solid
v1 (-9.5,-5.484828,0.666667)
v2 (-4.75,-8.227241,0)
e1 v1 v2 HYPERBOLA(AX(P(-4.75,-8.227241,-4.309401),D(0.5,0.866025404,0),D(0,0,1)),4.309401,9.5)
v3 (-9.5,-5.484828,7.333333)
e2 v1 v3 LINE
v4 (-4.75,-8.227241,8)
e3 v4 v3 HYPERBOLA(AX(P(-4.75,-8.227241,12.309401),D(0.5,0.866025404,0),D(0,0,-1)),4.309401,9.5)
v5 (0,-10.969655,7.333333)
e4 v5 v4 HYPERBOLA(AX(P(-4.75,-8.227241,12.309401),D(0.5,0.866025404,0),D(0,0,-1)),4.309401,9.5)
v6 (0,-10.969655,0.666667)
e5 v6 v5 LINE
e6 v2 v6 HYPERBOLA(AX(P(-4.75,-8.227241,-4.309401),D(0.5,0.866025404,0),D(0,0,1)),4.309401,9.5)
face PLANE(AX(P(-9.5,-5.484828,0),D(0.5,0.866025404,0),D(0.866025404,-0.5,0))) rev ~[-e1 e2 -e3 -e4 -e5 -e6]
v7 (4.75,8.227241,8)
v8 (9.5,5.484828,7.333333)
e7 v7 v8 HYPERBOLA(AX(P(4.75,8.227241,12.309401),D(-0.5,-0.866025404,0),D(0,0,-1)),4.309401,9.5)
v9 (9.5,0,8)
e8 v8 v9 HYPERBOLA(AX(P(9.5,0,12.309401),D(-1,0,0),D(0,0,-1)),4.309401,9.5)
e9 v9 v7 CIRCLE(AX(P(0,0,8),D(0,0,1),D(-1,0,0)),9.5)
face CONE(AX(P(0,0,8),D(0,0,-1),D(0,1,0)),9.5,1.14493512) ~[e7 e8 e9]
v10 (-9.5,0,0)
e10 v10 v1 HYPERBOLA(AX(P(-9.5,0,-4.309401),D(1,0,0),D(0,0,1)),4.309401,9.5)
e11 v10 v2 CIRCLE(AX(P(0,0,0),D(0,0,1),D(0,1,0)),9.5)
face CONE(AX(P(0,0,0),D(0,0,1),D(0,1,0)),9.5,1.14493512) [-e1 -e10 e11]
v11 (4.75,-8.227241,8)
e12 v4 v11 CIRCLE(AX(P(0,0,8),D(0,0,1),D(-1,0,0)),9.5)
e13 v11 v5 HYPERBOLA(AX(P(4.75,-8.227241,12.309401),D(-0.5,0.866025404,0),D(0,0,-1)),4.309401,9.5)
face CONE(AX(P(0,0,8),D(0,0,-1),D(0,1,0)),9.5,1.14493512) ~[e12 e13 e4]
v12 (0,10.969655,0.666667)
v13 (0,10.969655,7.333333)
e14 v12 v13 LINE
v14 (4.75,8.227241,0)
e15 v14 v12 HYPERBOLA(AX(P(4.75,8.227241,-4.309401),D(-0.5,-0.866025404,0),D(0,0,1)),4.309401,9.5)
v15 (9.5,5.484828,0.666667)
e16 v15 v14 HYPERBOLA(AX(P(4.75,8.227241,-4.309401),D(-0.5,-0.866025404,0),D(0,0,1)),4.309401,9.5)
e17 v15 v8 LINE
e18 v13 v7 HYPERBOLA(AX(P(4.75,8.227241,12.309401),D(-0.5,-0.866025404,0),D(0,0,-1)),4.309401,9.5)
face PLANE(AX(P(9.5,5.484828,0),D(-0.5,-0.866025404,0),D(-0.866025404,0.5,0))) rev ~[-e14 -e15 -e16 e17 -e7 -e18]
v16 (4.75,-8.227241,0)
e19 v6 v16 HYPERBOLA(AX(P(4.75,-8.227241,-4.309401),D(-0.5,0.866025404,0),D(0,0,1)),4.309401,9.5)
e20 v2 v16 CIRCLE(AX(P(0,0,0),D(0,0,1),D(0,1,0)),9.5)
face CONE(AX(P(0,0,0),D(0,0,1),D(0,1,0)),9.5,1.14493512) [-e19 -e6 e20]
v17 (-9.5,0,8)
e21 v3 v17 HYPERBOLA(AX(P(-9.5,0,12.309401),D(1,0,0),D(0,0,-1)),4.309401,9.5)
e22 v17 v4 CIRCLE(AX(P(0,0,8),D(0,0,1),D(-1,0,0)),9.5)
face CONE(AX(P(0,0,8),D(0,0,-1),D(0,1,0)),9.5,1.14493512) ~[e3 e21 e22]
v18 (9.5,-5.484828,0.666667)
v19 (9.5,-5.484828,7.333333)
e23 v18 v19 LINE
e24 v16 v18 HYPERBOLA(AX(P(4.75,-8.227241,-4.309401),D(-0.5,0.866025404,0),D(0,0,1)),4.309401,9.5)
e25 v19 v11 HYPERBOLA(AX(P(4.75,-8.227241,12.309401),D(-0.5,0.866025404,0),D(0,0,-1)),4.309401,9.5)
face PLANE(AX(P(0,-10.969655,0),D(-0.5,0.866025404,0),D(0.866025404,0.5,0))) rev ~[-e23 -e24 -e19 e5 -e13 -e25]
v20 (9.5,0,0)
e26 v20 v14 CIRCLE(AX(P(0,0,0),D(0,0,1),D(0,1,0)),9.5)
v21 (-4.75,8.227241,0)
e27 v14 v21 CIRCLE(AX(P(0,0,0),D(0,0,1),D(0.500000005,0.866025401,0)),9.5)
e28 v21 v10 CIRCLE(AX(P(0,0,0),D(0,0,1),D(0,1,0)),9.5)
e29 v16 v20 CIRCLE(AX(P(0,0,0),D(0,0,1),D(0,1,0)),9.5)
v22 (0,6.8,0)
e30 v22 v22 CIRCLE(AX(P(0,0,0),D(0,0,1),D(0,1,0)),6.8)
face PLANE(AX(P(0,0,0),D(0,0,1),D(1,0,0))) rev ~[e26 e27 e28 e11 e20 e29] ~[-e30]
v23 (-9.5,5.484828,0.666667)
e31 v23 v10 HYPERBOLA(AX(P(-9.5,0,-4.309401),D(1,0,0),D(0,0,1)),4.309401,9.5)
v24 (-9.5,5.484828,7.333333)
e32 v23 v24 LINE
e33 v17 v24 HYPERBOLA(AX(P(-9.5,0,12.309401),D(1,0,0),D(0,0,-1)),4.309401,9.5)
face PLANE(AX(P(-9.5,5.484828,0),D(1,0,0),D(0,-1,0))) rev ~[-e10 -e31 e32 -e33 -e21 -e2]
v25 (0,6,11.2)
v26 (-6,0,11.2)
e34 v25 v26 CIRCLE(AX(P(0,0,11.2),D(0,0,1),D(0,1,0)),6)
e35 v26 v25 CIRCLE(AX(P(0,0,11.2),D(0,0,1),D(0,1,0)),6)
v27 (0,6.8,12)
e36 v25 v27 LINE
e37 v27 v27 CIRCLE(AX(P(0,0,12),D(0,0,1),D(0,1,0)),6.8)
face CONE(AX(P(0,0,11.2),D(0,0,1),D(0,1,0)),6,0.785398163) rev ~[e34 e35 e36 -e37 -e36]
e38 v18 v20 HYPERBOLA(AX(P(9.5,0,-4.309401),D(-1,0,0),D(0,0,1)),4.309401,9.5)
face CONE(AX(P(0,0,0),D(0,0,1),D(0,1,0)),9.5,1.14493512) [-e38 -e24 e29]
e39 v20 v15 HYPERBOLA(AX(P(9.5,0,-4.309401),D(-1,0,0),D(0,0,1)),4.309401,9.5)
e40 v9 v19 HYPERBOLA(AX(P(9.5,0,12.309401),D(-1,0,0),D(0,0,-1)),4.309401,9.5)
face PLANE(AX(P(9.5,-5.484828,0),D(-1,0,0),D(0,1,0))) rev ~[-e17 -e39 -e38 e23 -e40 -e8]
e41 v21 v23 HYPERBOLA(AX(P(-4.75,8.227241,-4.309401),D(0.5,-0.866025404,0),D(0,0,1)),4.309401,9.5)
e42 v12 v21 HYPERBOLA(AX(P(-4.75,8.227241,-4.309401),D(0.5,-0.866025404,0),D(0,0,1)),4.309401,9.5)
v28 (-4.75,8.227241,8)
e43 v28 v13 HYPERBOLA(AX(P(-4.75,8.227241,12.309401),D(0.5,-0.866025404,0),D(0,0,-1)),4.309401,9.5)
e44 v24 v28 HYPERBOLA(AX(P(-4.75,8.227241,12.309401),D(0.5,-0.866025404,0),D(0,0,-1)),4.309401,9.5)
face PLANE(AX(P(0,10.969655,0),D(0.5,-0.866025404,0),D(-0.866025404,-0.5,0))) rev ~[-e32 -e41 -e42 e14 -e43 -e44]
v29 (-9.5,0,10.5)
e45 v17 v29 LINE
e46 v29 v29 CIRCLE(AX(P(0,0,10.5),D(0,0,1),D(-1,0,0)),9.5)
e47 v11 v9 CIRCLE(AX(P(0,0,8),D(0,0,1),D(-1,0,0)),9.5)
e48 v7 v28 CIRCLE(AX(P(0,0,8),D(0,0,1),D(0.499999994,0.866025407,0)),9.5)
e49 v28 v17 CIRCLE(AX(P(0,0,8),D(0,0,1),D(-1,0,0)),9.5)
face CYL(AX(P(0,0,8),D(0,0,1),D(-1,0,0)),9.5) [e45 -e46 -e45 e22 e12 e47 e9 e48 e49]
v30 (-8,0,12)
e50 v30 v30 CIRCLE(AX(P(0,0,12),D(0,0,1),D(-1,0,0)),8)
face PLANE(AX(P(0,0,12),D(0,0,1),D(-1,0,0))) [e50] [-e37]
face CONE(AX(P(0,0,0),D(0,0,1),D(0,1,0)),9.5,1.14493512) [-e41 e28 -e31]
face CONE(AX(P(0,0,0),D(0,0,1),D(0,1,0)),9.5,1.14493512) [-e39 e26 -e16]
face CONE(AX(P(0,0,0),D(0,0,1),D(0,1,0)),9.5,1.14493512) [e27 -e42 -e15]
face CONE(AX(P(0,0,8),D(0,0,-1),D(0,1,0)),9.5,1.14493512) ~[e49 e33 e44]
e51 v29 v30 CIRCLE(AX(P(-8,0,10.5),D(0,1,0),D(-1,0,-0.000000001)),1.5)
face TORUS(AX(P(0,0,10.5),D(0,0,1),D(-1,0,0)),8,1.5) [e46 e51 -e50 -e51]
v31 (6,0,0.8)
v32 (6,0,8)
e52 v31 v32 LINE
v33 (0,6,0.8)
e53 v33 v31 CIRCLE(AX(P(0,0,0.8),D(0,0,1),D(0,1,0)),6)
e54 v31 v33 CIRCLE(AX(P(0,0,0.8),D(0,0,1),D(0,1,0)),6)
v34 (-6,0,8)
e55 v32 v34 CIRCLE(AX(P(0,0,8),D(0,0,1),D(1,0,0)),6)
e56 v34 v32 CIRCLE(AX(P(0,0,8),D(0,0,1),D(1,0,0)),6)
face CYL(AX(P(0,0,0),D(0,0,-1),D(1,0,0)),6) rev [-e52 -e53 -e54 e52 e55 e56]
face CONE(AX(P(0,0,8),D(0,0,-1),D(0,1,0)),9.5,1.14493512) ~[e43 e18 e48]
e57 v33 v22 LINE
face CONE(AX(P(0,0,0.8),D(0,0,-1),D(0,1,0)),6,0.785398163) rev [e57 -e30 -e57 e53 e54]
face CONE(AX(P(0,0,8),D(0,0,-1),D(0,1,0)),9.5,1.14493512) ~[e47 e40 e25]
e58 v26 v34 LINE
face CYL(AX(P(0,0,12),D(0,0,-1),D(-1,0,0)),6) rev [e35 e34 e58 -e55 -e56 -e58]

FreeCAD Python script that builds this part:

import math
import FreeCAD as App
import Part
import Sketcher

V = App.Vector
Q = App.Units.Quantity

doc = App.newDocument("Part")
params = doc.addObject("Spreadsheet::Sheet", "Params")
for row, (alias, value) in enumerate([
    ("sketch1_diameter", "12 mm"),
    ("pad1_length", "8 mm"),
    ("sketch2_radius", "1.5 mm"),
    ("sketch2_width", "2 mm"),
    ("sketch2_height", "4 mm"),
    ("revolution_angle", "360 deg"),
    ("sketch3_width", "0.8 mm"),
    ("groove_angle", "360 deg"),
], start=1):
    params.set(f"A{row}", alias)
    params.set(f"B{row}", "=" + value)
    params.setAlias(f"B{row}", alias)

body = doc.addObject("PartDesign::Body", "Body")

sketch1 = body.newObject("Sketcher::SketchObject", "Sketch")
sketch1.AttachmentSupport = (doc.getObject("XY_Plane"), [""])
sketch1.MapMode = "FlatFace"
sketch1.addGeometry([
    Part.LineSegment(V(0, -11, 0), V(10, -5, 0)),
    Part.LineSegment(V(10, -5, 0), V(10, 5, 0)),
    Part.LineSegment(V(10, 5, 0), V(0, 11, 0)),
    Part.LineSegment(V(0, 11, 0), V(-10, 5, 0)),
    Part.LineSegment(V(-10, 5, 0), V(-10, -5, 0)),
    Part.LineSegment(V(-10, -5, 0), V(0, -11, 0)),
    Part.Circle(V(0, 0, 0), V(0, 0, 1), 6),
], False)
sketch1.addConstraint([
    Sketcher.Constraint("Coincident", 0, 2, 1, 1),
    Sketcher.Constraint("Coincident", 1, 2, 2, 1),
    Sketcher.Constraint("Coincident", 2, 2, 3, 1),
    Sketcher.Constraint("Coincident", 3, 2, 4, 1),
    Sketcher.Constraint("Coincident", 4, 2, 5, 1),
    Sketcher.Constraint("Coincident", 5, 2, 0, 1),
    Sketcher.Constraint("Vertical", 1),
    Sketcher.Constraint("Vertical", 4),
    Sketcher.Constraint("Coincident", 6, 3, -1, 1),
    Sketcher.Constraint("Symmetric", 0, 2, 3, 2, -1, 1),
    Sketcher.Constraint("Symmetric", 2, 2, 5, 2, -1, 1),
    Sketcher.Constraint("PointOnObject", 2, 2, -2),
    Sketcher.Constraint("Parallel", 2, 5),
    Sketcher.Constraint("Horizontal", 1, 2, 3, 2),
    Sketcher.Constraint("Diameter", 6, 12.0),
    Sketcher.Constraint("Angle", 0, Q("30 deg")),
    Sketcher.Constraint("DistanceX", 3, 2, 1, 2, 19.0),
    Sketcher.Constraint("DistanceY", 1, 1, 1, 2, 10.969655),
])
sketch1.setExpression("Constraints[14]", "Params.sketch1_diameter")
pad1 = body.newObject("PartDesign::Pad", "Pad")
pad1.Profile = sketch1
pad1.setExpression("Length", "Params.pad1_length")

sketch2 = body.newObject("Sketcher::SketchObject", "Sketch001")
sketch2.AttachmentSupport = (doc.getObject("XZ_Plane"), [""])
sketch2.MapMode = "FlatFace"
sketch2.addGeometry([
    Part.LineSegment(V(-9.5, 8, 0), V(-9.5, 10.5, 0)),
    Part.ArcOfCircle(Part.Circle(V(-8, 10.5, 0), V(0, 0, 1), 1.5), math.radians(90), math.radians(180)),
    Part.LineSegment(V(-8, 12, 0), V(-6, 12, 0)),
    Part.LineSegment(V(-6, 12, 0), V(-6, 8, 0)),
    Part.LineSegment(V(-6, 8, 0), V(-9.5, 8, 0)),
], False)
sketch2.addConstraint([
    Sketcher.Constraint("Tangent", 0, 2, 1, 2),
    Sketcher.Constraint("Tangent", 1, 1, 2, 1),
    Sketcher.Constraint("Coincident", 2, 2, 3, 1),
    Sketcher.Constraint("Coincident", 3, 2, 4, 1),
    Sketcher.Constraint("Coincident", 4, 2, 0, 1),
    Sketcher.Constraint("Vertical", 0),
    Sketcher.Constraint("Horizontal", 2),
    Sketcher.Constraint("Vertical", 3),
    Sketcher.Constraint("Horizontal", 4),
    Sketcher.Constraint("Radius", 1, 1.5),
    Sketcher.Constraint("DistanceX", 2, 1, 2, 2, 2.0),
    Sketcher.Constraint("DistanceY", 3, 2, 3, 1, 4.0),
    Sketcher.Constraint("DistanceX", 1, 3, -1, 1, 8.0),
    Sketcher.Constraint("DistanceY", -1, 1, 1, 1, 12.0),
])
sketch2.setExpression("Constraints[9]", "Params.sketch2_radius")
sketch2.setExpression("Constraints[10]", "Params.sketch2_width")
sketch2.setExpression("Constraints[11]", "Params.sketch2_height")
revolution = body.newObject("PartDesign::Revolution", "Revolution")
revolution.Profile = sketch2
revolution.ReferenceAxis = (sketch2, ["V_Axis"])
revolution.setExpression("Angle", "Params.revolution_angle")

sketch3 = body.newObject("Sketcher::SketchObject", "Sketch002")
sketch3.AttachmentSupport = (doc.getObject("YZ_Plane"), [""])
sketch3.MapMode = "FlatFace"
sketch3.addGeometry([
    Part.LineSegment(V(11, 8, 0), V(9.5, 8, 0)),
    Part.LineSegment(V(9.5, 8, 0), V(11, 7.3, 0)),
    Part.LineSegment(V(11, 7.3, 0), V(11, 8, 0)),
    Part.LineSegment(V(11, 0, 0), V(11, 0.7, 0)),
    Part.LineSegment(V(11, 0.7, 0), V(9.5, 0, 0)),
    Part.LineSegment(V(9.5, 0, 0), V(11, 0, 0)),
    Part.LineSegment(V(6, 12, 0), V(6, 11.2, 0)),
    Part.LineSegment(V(6, 11.2, 0), V(6.8, 12, 0)),
    Part.LineSegment(V(6.8, 12, 0), V(6, 12, 0)),
    Part.LineSegment(V(6, 0.8, 0), V(6, 0, 0)),
    Part.LineSegment(V(6, 0, 0), V(6.8, 0, 0)),
    Part.LineSegment(V(6.8, 0, 0), V(6, 0.8, 0)),
], False)
sketch3.addConstraint([
    Sketcher.Constraint("Coincident", 0, 2, 1, 1),
    Sketcher.Constraint("Coincident", 1, 2, 2, 1),
    Sketcher.Constraint("Coincident", 2, 2, 0, 1),
    Sketcher.Constraint("Coincident", 3, 2, 4, 1),
    Sketcher.Constraint("Coincident", 4, 2, 5, 1),
    Sketcher.Constraint("Coincident", 5, 2, 3, 1),
    Sketcher.Constraint("Coincident", 6, 2, 7, 1),
    Sketcher.Constraint("Coincident", 7, 2, 8, 1),
    Sketcher.Constraint("Coincident", 8, 2, 6, 1),
    Sketcher.Constraint("Coincident", 9, 2, 10, 1),
    Sketcher.Constraint("Coincident", 10, 2, 11, 1),
    Sketcher.Constraint("Coincident", 11, 2, 9, 1),
    Sketcher.Constraint("Horizontal", 0),
    Sketcher.Constraint("Vertical", 2),
    Sketcher.Constraint("Vertical", 3),
    Sketcher.Constraint("Horizontal", 5),
    Sketcher.Constraint("Vertical", 6),
    Sketcher.Constraint("Horizontal", 8),
    Sketcher.Constraint("Vertical", 9),
    Sketcher.Constraint("Horizontal", 10),
    Sketcher.Constraint("PointOnObject", 4, 2, -1),
    Sketcher.Constraint("PointOnObject", 9, 2, -1),
    Sketcher.Constraint("Perpendicular", 7, 11),
    Sketcher.Constraint("Vertical", 2, 2, 3, 2),
    Sketcher.Constraint("Vertical", 0, 2, 4, 2),
    Sketcher.Constraint("Vertical", 8, 2, 9, 2),
    Sketcher.Constraint("Vertical", 7, 2, 10, 2),
    Sketcher.Constraint("Equal", 2, 3),
    Sketcher.Constraint("Equal", 10, 6),
    Sketcher.Constraint("DistanceX", 8, 2, 8, 1, 0.8),
    Sketcher.Constraint("DistanceY", -1, 1, 0, 2, 8.0),
    Sketcher.Constraint("DistanceX", -1, 1, 6, 2, 6.0),
    Sketcher.Constraint("DistanceY", -1, 1, 7, 2, 12.0),
    Sketcher.Constraint("DistanceX", -1, 1, 0, 2, 9.5),
    Sketcher.Constraint("DistanceX", 0, 2, 0, 1, 1.469655),
    Sketcher.Constraint("DistanceY", 2, 1, 2, 2, 0.666667),
])
sketch3.setExpression("Constraints[29]", "Params.sketch3_width")
groove = body.newObject("PartDesign::Groove", "Groove")
groove.Profile = sketch3
groove.ReferenceAxis = (sketch3, ["V_Axis"])
groove.setExpression("Angle", "Params.groove_angle")

doc.recompute()
